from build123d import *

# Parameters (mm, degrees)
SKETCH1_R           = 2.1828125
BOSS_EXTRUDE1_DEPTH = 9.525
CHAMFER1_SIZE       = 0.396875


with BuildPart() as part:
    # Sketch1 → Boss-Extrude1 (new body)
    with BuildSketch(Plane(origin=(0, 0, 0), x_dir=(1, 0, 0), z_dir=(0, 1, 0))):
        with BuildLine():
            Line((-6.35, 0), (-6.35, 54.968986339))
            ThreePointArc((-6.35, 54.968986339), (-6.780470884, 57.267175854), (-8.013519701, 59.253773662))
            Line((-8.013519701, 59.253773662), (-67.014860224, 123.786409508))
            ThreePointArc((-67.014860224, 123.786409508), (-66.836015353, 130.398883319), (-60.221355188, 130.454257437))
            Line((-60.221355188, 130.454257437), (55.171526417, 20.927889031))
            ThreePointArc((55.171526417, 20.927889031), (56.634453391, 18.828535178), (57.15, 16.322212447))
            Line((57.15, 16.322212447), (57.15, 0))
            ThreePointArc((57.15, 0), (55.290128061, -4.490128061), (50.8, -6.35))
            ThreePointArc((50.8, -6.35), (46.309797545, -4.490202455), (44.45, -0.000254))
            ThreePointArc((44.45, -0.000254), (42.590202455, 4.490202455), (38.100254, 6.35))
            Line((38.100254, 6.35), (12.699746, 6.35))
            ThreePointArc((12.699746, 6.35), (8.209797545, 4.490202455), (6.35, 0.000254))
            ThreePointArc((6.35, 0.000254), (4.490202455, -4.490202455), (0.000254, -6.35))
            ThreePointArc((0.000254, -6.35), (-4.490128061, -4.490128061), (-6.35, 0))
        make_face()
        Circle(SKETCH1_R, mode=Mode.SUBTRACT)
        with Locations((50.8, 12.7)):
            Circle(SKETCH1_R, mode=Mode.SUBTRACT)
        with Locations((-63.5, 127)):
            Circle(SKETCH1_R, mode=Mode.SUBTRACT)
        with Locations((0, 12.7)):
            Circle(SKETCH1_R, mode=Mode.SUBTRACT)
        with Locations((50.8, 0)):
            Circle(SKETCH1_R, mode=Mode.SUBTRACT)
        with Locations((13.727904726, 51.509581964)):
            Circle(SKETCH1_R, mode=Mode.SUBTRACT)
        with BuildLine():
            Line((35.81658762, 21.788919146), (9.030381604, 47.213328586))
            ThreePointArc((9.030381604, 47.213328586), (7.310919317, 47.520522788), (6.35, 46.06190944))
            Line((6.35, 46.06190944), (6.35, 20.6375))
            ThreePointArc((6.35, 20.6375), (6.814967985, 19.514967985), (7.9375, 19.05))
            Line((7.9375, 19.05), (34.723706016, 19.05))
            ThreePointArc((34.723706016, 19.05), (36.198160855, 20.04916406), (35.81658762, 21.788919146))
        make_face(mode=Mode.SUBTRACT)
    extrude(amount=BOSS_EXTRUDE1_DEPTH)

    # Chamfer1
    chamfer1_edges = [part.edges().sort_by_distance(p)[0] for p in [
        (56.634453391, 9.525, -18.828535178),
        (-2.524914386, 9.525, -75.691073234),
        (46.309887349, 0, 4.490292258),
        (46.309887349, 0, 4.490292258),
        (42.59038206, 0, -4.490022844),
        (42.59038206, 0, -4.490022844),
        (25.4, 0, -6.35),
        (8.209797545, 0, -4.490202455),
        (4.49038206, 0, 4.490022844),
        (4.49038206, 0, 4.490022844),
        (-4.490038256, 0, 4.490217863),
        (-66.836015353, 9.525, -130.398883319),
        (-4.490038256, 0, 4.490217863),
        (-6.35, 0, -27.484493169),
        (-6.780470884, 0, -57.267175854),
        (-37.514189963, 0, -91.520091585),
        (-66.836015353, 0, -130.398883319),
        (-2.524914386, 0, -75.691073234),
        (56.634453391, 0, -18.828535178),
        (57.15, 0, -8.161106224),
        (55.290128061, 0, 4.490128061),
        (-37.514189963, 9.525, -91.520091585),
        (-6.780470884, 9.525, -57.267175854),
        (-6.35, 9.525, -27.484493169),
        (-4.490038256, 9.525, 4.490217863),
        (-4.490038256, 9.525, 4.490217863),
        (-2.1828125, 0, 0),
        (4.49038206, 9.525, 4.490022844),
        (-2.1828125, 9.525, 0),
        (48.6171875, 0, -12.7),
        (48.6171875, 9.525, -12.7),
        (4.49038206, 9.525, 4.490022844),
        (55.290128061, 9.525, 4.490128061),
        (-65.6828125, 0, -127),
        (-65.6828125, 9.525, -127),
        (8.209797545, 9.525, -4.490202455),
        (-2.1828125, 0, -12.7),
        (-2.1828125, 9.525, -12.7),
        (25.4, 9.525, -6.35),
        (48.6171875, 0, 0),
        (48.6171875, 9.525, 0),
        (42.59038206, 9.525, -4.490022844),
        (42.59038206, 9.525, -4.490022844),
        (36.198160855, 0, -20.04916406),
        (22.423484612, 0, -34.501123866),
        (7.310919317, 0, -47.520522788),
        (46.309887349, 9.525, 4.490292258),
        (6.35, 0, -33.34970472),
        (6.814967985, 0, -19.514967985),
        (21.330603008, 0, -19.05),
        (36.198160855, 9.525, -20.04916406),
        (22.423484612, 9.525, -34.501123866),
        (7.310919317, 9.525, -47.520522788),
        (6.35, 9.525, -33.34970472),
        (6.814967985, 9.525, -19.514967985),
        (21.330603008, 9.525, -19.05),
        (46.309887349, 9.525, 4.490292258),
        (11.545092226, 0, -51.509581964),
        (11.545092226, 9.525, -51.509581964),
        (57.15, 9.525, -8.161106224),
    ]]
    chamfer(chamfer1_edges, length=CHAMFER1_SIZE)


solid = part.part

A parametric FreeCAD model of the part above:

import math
import FreeCAD as App
import Part
import Sketcher
from FreeCAD import Vector
Q = App.Units.Quantity

doc = App.newDocument("Part")
body = doc.addObject("PartDesign::Body", "Body")

sketch1 = body.newObject("Sketcher::SketchObject", "Sketch")
sketch1.AttachmentSupport = (doc.getObject("XZ_Plane"), [""])
sketch1.MapMode = "FlatFace"
sketch1.addGeometry(Part.LineSegment(Vector(-6.3, -55, 0), Vector(-6.3, 0, 0)), False)
sketch1.addGeometry(Part.ArcOfCircle(Part.Circle(Vector(0, 0, 0), Vector(0, 0, 1), 6.4), math.radians(90), math.radians(180)), False)
sketch1.addGeometry(Part.ArcOfCircle(Part.Circle(Vector(0, 0, 0), Vector(0, 0, 1), 6.3), math.radians(0), math.radians(90)), False)
sketch1.addGeometry(Part.ArcOfCircle(Part.Circle(Vector(12.7, 0, 0), Vector(0, 0, 1), 6.3), math.radians(-180), math.radians(-90)), False)
sketch1.addGeometry(Part.LineSegment(Vector(12.7, -6.3, 0), Vector(38.1, -6.3, 0)), False)
sketch1.addGeometry(Part.ArcOfCircle(Part.Circle(Vector(38.1, 0, 0), Vector(0, 0, 1), 6.3), math.radians(-90), math.radians(0)), False)
sketch1.addGeometry(Part.ArcOfCircle(Part.Circle(Vector(50.8, 0, 0), Vector(0, 0, 1), 6.3), math.radians(90), math.radians(180)), False)
sketch1.addGeometry(Part.ArcOfCircle(Part.Circle(Vector(50.8, 0, 0), Vector(0, 0, 1), 6.3), math.radians(0), math.radians(90)), False)
sketch1.addGeometry(Part.LineSegment(Vector(57.1, 0, 0), Vector(57.1, -16.3, 0)), False)
sketch1.addGeometry(Part.ArcOfCircle(Part.Circle(Vector(50.8, -16.3, 0), Vector(0, 0, 1), 6.4), math.radians(-46), math.radians(0)), False)
sketch1.addGeometry(Part.LineSegment(Vector(55.2, -20.9, 0), Vector(-60.2, -130.5, 0)), False)
sketch1.addGeometry(Part.ArcOfCircle(Part.Circle(Vector(-63.5, -127, 0), Vector(0, 0, 1), 4.8), math.radians(138), math.radians(314)), False)
sketch1.addGeometry(Part.LineSegment(Vector(-67, -123.8, 0), Vector(-8, -59.3, 0)), False)
sketch1.addGeometry(Part.ArcOfCircle(Part.Circle(Vector(-12.7, -55, 0), Vector(0, 0, 1), 6.3), math.radians(-42), math.radians(0)), False)
sketch1.addGeometry(Part.Circle(Vector(50.8, 0, 0), Vector(0, 0, 1), 2.2), False)
sketch1.addGeometry(Part.Circle(Vector(50.8, -12.7, 0), Vector(0, 0, 1), 2.2), False)
sketch1.addGeometry(Part.Circle(Vector(0, 0, 0), Vector(0, 0, 1), 2.2), False)
sketch1.addGeometry(Part.Circle(Vector(0, -12.7, 0), Vector(0, 0, 1), 2.2), False)
sketch1.addGeometry(Part.ArcOfCircle(Part.Circle(Vector(34.7, -20.6, 0), Vector(0, 0, 1), 1.6), math.radians(-46), math.radians(90)), False)
sketch1.addGeometry(Part.LineSegment(Vector(34.7, -19.1, 0), Vector(7.9, -19.1, 0)), False)
sketch1.addGeometry(Part.ArcOfCircle(Part.Circle(Vector(7.9, -20.6, 0), Vector(0, 0, 1), 1.6), math.radians(90), math.radians(180)), False)
sketch1.addGeometry(Part.LineSegment(Vector(6.3, -20.6, 0), Vector(6.3, -46.1, 0)), False)
sketch1.addGeometry(Part.ArcOfCircle(Part.Circle(Vector(7.9, -46.1, 0), Vector(0, 0, 1), 1.6), math.radians(180), math.radians(314)), False)
sketch1.addGeometry(Part.LineSegment(Vector(9, -47.2, 0), Vector(35.8, -21.8, 0)), False)
sketch1.addGeometry(Part.Circle(Vector(13.7, -51.5, 0), Vector(0, 0, 1), 2.2), False)
sketch1.addGeometry(Part.Circle(Vector(-63.5, -127, 0), Vector(0, 0, 1), 2.2), False)
sketch1.addConstraint(Sketcher.Constraint("Tangent", 0, 2, 1, 2))
sketch1.addConstraint(Sketcher.Constraint("Coincident", 1, 1, 2, 2))
sketch1.addConstraint(Sketcher.Constraint("Coincident", 2, 1, 3, 1))
sketch1.addConstraint(Sketcher.Constraint("Tangent", 3, 2, 4, 1))
sketch1.addConstraint(Sketcher.Constraint("Tangent", 4, 2, 5, 1))
sketch1.addConstraint(Sketcher.Constraint("Coincident", 5, 2, 6, 2))
sketch1.addConstraint(Sketcher.Constraint("Coincident", 6, 1, 7, 2))
sketch1.addConstraint(Sketcher.Constraint("Tangent", 7, 1, 8, 1))
sketch1.addConstraint(Sketcher.Constraint("Tangent", 8, 2, 9, 2))
sketch1.addConstraint(Sketcher.Constraint("Tangent", 9, 1, 10, 1))
sketch1.addConstraint(Sketcher.Constraint("Tangent", 10, 2, 11, 2))
sketch1.addConstraint(Sketcher.Constraint("Tangent", 11, 1, 12, 1))
sketch1.addConstraint(Sketcher.Constraint("Tangent", 12, 2, 13, 1))
sketch1.addConstraint(Sketcher.Constraint("Tangent", 13, 2, 0, 1))
sketch1.addConstraint(Sketcher.Constraint("Tangent", 18, 2, 19, 1))
sketch1.addConstraint(Sketcher.Constraint("Tangent", 19, 2, 20, 1))
sketch1.addConstraint(Sketcher.Constraint("Tangent", 20, 2, 21, 1))
sketch1.addConstraint(Sketcher.Constraint("Tangent", 21, 2, 22, 1))
sketch1.addConstraint(Sketcher.Constraint("Tangent", 22, 2, 23, 1))
sketch1.addConstraint(Sketcher.Constraint("Tangent", 23, 2, 18, 1))
sketch1.addConstraint(Sketcher.Constraint("Vertical", 0))
sketch1.addConstraint(Sketcher.Constraint("Horizontal", 4))
sketch1.addConstraint(Sketcher.Constraint("Vertical", 8))
sketch1.addConstraint(Sketcher.Constraint("Horizontal", 19))
sketch1.addConstraint(Sketcher.Constraint("Vertical", 21))
sketch1.addConstraint(Sketcher.Constraint("Coincident", 1, 3, -1, 1))
sketch1.addConstraint(Sketcher.Constraint("Coincident", 16, 3, -1, 1))
sketch1.addConstraint(Sketcher.Constraint("Coincident", 14, 3, 7, 3))
sketch1.addConstraint(Sketcher.Constraint("Coincident", 25, 3, 11, 3))
sketch1.addConstraint(Sketcher.Constraint("Equal", 2, 3))
sketch1.addConstraint(Sketcher.Constraint("Equal", 3, 5))
sketch1.addConstraint(Sketcher.Constraint("Equal", 5, 6))
sketch1.addConstraint(Sketcher.Constraint("Equal", 1, 7))
sketch1.addConstraint(Sketcher.Constraint("Equal", 7, 9))
sketch1.addConstraint(Sketcher.Constraint("Equal", 9, 13))
sketch1.addConstraint(Sketcher.Constraint("Equal", 14, 15))
sketch1.addConstraint(Sketcher.Constraint("Equal", 15, 16))
sketch1.addConstraint(Sketcher.Constraint("Equal", 16, 17))
sketch1.addConstraint(Sketcher.Constraint("Equal", 18, 20))
sketch1.addConstraint(Sketcher.Constraint("Equal", 20, 22))
sketch1.addConstraint(Sketcher.Constraint("Equal", 17, 24))
sketch1.addConstraint(Sketcher.Constraint("Equal", 24, 25))
sketch1.addConstraint(Sketcher.Constraint("PointOnObject", 7, 3, -1))
sketch1.addConstraint(Sketcher.Constraint("PointOnObject", 17, 3, -2))
sketch1.addConstraint(Sketcher.Constraint("Parallel", 10, 23))
sketch1.addConstraint(Sketcher.Constraint("Horizontal", 15, 3, 17, 3))
sketch1.addConstraint(Sketcher.Constraint("Horizontal", 5, 3, 2, 1))
sketch1.addConstraint(Sketcher.Constraint("Horizontal", 6, 3, 5, 2))
sketch1.addConstraint(Sketcher.Constraint("Vertical", 14, 3, 15, 3))
sketch1.addConstraint(Sketcher.Constraint("Vertical", 2, 3, 1, 1))
sketch1.addConstraint(Sketcher.Constraint("Vertical", 15, 3, 6, 1))
sketch1.addConstraint(Sketcher.Constraint("Vertical", 2, 1, 20, 2))
sketch1.addConstraint(Sketcher.Constraint("Radius", 1, Q("0.25 in")))
sketch1.addConstraint(Sketcher.Constraint("Diameter", 14, Q("0.171875 in")))
sketch1.addConstraint(Sketcher.Constraint("DistanceX", -1, 1, 7, 3, Q("2 in")))
sketch1.addConstraint(Sketcher.Constraint("DistanceY", 11, 3, -1, 1, Q("5 in")))
sketch1.addConstraint(Sketcher.Constraint("Radius", 11, Q("0.1875 in")))
sketch1.addConstraint(Sketcher.Constraint("Radius", 18, Q("0.0625 in")))
sketch1.addConstraint(Sketcher.Constraint("DistanceX", 25, 3, 13, 3, Q("2 in")))
sketch1.addConstraint(Sketcher.Constraint("DistanceY", 15, 3, -1, 1, Q("0.5 in")))
sketch1.addConstraint(Sketcher.Constraint("DistanceX", 2, 3, 5, 3, Q("1.5 in")))
sketch1.addConstraint(Sketcher.Constraint("DistanceX", 5, 2, 7, 1, Q("0.5 in")))
sketch1.addConstraint(Sketcher.Constraint("DistanceY", 18, 2, 4, 2, Q("0.5 in")))
sketch1.addConstraint(Sketcher.Constraint("DistanceY", 3, 2, -1, 1, Q("0.25 in")))
sketch1.addConstraint(Sketcher.Constraint("Radius", 2, 6.349746))
sketch1.addConstraint(Sketcher.Constraint("DistanceY", 21, 2, 21, 1, 25.424409))
sketch1.addConstraint(Sketcher.Constraint("DistanceX", 24, 3, 18, 3, 20.995801))
sketch1.addConstraint(Sketcher.Constraint("DistanceY", 11, 1, 22, 3, 77.7245))
sketch1.addConstraint(Sketcher.Constraint("DistanceX", 19, 2, 19, 1, 26.786206))
sketch1.addConstraint(Sketcher.Constraint("DistanceY", 24, 3, -1, 1, 51.509582))
pad1 = body.newObject("PartDesign::Pad", "Pad")
pad1.Profile = sketch1
pad1.Length = Q("0.375 in")
pad1.Reversed = True
doc.recompute()

chamfer = body.newObject("PartDesign::Chamfer", "Chamfer")
chamfer.Base = (pad1, ["Edge1"])
chamfer.UseAllEdges = True
chamfer.Size = Q("0.015625 in")

doc.recompute()
